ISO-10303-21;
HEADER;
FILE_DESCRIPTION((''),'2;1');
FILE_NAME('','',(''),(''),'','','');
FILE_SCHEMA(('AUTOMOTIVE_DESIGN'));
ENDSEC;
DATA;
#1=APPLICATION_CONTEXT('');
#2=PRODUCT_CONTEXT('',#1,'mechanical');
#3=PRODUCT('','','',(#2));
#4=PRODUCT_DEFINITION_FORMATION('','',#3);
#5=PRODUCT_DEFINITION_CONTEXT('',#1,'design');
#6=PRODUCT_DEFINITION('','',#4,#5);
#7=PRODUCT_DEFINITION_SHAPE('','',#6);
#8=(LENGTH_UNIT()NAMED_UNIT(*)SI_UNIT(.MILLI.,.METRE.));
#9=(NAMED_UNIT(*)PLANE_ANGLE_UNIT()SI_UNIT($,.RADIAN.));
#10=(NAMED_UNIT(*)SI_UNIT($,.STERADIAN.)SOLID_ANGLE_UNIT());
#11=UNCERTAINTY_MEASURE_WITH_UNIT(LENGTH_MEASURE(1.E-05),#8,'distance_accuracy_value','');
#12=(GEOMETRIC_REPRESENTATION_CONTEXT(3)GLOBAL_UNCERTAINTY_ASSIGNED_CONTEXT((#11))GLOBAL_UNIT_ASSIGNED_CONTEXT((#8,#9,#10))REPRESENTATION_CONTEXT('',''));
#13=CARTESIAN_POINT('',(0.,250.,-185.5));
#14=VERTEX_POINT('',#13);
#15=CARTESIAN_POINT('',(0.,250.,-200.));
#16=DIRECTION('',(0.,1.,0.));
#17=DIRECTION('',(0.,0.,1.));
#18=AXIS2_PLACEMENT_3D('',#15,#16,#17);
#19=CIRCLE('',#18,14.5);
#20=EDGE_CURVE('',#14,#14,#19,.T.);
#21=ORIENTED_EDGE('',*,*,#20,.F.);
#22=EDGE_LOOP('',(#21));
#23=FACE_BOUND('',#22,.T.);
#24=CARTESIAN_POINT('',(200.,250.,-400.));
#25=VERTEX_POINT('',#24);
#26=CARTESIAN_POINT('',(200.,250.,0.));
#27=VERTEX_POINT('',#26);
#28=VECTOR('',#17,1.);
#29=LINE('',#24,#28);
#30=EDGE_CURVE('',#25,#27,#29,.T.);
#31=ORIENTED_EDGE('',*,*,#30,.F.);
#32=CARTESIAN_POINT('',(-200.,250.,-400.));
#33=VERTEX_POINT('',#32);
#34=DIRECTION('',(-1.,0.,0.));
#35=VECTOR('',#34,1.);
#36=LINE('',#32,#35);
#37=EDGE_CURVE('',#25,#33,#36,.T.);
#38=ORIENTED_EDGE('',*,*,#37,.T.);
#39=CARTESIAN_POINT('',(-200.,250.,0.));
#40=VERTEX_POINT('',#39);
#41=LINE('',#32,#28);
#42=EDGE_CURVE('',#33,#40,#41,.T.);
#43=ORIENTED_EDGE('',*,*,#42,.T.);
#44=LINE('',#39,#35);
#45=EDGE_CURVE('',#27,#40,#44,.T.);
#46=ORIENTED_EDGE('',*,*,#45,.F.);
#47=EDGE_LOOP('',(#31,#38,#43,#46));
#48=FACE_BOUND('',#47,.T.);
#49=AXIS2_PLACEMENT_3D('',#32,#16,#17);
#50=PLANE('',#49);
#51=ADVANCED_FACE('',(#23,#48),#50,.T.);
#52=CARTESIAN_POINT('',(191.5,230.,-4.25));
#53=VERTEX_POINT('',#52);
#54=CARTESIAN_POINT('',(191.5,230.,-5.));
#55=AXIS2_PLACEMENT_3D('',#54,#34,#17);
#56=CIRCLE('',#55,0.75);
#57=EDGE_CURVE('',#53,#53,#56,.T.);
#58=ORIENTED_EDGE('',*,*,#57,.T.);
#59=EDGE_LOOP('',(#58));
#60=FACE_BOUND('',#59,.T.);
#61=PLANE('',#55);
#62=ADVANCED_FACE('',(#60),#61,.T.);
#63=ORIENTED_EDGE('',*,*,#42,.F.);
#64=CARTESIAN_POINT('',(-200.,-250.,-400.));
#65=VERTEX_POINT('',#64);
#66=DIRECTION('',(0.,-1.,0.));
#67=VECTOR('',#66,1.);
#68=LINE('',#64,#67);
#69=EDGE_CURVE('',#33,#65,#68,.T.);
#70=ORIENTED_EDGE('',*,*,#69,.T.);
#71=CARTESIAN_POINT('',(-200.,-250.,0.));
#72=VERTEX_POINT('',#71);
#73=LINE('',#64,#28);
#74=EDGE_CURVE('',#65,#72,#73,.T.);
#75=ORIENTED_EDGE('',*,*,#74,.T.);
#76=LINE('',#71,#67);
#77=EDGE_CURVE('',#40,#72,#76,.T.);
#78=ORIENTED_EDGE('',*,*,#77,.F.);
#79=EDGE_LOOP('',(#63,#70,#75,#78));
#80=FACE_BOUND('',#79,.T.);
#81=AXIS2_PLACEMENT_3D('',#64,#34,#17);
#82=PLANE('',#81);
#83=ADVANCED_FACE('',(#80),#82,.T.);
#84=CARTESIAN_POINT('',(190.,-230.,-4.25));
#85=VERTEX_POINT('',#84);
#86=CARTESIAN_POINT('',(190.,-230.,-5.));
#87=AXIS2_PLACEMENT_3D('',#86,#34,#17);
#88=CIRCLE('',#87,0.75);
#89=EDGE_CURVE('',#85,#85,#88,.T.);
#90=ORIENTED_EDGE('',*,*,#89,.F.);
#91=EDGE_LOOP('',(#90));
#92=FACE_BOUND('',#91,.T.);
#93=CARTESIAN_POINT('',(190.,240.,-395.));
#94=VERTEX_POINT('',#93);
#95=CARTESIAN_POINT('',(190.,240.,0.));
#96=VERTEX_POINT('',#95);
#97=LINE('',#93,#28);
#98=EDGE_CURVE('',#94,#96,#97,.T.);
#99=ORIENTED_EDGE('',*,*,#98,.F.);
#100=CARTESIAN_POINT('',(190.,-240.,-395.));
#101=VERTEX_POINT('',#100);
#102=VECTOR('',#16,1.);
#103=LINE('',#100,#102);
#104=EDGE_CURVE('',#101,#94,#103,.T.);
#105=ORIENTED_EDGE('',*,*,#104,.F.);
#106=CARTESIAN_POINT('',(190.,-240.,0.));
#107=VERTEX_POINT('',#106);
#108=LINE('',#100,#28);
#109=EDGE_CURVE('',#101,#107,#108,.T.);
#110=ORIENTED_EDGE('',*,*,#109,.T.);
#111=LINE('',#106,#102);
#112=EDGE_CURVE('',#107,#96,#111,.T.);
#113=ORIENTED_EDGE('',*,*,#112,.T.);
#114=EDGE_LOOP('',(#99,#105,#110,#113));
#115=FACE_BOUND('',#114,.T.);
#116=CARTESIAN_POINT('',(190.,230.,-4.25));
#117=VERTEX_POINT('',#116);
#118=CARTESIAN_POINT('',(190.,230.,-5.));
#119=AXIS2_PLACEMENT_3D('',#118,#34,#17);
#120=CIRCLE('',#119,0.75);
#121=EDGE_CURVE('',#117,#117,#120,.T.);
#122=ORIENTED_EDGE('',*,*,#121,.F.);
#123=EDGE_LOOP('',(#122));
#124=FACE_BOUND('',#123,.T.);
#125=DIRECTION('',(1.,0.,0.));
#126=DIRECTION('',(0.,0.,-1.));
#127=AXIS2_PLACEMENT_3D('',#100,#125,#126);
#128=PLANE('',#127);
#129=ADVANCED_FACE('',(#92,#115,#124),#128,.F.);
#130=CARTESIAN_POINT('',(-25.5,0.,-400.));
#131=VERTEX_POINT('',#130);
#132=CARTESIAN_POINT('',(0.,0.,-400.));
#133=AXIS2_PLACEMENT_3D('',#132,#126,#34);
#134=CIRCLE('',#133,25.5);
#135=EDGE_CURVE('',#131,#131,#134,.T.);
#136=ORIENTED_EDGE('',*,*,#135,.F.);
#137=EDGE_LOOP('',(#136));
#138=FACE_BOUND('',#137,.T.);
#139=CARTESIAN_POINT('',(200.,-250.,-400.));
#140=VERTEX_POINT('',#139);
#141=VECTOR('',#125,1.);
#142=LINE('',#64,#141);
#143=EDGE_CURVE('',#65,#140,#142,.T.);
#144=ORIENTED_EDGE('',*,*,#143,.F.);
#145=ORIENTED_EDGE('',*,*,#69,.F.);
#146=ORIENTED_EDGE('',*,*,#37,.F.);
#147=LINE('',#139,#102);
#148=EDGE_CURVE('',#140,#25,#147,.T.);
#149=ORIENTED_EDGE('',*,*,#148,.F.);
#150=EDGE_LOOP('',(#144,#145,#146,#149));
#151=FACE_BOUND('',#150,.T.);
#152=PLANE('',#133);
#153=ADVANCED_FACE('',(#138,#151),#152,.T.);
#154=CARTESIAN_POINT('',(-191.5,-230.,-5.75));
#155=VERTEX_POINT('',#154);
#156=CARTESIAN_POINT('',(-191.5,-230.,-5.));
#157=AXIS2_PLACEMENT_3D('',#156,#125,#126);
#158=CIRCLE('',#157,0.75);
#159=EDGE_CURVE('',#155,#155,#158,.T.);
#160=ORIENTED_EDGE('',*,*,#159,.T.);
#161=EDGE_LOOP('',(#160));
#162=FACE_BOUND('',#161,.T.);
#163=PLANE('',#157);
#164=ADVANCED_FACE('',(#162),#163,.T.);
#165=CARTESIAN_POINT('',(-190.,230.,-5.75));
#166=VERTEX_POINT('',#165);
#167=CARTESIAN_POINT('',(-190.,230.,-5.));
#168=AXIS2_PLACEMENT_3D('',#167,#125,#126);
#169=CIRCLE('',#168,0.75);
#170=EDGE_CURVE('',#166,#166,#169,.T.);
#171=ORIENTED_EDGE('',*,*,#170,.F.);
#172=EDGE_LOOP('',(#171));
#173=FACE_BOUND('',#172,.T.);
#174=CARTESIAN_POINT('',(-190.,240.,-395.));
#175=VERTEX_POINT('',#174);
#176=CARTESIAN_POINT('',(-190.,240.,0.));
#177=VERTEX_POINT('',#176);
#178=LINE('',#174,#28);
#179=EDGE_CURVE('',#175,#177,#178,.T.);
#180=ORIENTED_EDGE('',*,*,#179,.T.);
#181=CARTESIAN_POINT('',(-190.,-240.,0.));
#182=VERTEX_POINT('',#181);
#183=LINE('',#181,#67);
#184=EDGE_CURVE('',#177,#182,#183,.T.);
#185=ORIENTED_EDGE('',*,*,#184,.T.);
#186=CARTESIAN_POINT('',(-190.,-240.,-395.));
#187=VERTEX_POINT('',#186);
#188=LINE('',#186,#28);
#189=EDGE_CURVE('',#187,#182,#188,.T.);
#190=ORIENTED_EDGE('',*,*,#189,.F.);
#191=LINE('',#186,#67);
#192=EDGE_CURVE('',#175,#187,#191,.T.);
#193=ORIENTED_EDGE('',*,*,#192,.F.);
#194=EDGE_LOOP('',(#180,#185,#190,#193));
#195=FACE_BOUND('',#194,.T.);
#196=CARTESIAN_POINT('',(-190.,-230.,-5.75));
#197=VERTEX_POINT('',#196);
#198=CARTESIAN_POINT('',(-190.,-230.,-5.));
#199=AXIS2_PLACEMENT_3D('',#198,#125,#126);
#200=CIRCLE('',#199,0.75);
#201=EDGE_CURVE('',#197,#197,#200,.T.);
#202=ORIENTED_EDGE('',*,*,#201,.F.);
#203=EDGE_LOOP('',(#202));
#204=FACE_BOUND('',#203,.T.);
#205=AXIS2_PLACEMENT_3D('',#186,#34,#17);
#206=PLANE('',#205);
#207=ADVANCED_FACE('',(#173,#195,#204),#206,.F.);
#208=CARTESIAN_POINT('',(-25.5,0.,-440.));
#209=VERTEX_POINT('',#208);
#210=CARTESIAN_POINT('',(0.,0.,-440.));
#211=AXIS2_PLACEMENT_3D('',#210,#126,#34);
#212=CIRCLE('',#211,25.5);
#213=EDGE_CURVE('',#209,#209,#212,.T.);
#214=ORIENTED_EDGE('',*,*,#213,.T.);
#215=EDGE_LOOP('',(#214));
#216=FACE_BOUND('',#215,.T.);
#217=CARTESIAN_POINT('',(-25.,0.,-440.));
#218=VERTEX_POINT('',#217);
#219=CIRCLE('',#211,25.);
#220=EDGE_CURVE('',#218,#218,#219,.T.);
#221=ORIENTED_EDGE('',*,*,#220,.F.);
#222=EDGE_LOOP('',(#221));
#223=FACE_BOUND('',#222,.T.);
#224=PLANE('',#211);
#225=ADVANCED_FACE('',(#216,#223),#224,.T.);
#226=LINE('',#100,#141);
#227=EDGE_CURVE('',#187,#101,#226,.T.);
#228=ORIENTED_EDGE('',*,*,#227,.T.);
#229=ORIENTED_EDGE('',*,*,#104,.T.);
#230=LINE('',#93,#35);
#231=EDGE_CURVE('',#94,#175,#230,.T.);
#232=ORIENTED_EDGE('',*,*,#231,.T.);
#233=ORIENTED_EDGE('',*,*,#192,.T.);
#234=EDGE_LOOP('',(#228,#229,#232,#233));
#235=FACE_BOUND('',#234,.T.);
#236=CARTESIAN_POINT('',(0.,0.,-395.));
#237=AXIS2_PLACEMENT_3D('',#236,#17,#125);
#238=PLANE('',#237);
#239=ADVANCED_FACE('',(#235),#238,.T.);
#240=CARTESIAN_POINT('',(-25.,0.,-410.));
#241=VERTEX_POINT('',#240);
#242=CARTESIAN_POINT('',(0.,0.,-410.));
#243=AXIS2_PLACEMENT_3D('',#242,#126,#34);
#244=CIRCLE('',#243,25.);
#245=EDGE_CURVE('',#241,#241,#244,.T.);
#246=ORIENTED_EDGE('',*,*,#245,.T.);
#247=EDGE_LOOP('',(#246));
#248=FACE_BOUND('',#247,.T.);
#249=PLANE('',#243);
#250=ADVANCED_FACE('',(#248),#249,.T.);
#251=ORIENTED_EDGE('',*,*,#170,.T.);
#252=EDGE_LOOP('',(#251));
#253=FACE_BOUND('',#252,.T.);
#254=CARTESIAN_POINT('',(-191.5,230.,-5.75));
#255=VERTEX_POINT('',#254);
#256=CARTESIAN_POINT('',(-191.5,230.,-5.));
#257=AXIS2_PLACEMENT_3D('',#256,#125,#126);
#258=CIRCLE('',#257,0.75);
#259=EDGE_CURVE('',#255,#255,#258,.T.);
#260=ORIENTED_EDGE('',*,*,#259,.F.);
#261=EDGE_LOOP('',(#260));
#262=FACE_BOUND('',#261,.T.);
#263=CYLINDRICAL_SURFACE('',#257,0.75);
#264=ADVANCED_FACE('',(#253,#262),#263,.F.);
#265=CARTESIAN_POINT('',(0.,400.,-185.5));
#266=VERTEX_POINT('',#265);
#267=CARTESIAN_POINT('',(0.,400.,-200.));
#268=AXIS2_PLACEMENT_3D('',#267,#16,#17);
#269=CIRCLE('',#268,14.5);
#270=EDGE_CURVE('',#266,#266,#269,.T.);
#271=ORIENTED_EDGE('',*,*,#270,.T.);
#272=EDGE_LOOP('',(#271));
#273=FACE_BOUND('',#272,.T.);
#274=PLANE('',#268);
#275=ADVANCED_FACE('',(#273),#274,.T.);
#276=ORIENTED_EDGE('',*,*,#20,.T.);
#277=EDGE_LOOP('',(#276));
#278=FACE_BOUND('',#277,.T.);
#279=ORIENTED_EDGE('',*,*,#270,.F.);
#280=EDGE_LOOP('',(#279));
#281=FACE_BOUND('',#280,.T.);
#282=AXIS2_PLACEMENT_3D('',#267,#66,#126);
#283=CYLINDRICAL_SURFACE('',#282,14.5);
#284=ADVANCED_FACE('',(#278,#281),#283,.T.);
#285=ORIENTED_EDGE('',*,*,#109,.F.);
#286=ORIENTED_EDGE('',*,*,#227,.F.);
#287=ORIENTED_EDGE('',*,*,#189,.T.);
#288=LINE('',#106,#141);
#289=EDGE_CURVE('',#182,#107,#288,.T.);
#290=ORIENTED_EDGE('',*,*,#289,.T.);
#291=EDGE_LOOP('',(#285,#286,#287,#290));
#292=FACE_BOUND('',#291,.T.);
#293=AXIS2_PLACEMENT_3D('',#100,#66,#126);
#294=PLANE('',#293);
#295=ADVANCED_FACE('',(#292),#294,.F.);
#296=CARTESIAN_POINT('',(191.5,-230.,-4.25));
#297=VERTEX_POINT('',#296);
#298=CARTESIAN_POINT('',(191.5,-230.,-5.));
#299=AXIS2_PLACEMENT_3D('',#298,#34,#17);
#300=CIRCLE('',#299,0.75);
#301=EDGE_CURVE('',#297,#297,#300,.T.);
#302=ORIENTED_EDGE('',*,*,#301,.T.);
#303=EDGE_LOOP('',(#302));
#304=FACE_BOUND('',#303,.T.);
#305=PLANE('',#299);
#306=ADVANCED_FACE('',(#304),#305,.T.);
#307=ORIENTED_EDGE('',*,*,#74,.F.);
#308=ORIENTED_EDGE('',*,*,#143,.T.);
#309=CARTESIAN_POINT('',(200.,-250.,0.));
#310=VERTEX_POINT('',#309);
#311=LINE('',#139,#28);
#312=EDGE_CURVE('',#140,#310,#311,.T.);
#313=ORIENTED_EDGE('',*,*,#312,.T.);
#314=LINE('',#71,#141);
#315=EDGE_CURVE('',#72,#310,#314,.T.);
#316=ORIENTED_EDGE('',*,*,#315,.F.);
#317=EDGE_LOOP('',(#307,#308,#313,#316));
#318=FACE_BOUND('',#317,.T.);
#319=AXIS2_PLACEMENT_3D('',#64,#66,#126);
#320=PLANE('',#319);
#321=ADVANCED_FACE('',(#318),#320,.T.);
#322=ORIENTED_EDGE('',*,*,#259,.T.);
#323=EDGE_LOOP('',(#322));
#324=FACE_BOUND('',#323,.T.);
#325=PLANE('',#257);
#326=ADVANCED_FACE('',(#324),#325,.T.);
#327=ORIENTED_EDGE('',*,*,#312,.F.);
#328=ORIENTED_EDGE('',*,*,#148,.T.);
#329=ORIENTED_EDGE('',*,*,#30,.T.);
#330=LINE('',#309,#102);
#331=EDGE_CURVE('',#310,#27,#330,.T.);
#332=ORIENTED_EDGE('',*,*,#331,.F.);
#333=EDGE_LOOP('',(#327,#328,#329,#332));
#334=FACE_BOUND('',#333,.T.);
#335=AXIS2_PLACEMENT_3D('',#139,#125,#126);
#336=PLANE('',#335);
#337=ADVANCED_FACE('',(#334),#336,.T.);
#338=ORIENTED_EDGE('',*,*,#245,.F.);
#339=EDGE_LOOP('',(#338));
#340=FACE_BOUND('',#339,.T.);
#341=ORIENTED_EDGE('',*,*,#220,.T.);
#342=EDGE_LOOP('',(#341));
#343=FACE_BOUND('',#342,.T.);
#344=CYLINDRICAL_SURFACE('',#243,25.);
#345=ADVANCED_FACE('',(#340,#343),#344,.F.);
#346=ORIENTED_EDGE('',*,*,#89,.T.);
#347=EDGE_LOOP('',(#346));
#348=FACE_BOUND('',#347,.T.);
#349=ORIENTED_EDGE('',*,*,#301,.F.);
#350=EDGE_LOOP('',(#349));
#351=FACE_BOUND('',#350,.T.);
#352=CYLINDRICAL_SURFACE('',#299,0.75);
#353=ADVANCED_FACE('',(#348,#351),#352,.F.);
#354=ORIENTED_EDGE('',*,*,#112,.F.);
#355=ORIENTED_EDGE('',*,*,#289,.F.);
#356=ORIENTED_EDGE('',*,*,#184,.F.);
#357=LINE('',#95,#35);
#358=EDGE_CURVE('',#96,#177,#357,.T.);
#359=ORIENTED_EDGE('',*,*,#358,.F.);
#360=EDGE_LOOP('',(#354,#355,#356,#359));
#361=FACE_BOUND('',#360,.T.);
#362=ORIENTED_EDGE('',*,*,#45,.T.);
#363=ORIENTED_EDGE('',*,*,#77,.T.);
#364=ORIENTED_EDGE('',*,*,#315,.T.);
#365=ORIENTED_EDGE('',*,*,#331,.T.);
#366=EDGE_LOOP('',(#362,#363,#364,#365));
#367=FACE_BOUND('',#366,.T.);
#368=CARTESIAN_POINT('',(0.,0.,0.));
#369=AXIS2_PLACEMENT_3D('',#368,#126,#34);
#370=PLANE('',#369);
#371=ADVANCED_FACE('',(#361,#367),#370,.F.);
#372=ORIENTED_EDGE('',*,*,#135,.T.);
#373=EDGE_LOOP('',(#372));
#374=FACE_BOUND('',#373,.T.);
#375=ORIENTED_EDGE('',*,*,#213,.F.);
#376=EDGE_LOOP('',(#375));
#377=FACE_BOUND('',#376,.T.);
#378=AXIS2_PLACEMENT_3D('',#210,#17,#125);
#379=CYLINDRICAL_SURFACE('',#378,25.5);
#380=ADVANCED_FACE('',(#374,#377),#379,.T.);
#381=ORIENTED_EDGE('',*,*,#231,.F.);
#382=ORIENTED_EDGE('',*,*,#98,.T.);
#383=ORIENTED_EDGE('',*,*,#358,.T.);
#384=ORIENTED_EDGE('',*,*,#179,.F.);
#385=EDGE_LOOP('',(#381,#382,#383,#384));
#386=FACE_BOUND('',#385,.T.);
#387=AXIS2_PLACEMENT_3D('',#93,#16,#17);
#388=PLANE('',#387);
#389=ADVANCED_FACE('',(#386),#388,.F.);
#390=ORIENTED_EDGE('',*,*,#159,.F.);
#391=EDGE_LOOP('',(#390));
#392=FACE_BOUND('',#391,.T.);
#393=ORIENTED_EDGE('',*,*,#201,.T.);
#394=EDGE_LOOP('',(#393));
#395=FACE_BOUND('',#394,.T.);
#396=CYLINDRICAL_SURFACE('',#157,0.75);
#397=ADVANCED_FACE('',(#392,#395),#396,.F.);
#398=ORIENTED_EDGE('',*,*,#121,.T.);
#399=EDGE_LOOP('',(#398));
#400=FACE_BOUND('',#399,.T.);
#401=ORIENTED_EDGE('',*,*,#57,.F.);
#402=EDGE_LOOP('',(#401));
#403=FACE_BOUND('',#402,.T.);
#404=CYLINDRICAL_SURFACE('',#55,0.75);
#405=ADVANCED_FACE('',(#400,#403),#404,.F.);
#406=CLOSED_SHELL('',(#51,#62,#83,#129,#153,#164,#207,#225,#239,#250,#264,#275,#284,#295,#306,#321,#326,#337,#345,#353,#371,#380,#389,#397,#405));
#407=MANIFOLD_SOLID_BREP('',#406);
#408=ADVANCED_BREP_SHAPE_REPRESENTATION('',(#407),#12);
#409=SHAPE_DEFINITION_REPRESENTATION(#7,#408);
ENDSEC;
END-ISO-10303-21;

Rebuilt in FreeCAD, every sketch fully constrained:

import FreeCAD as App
import Part
import Sketcher
from FreeCAD import Vector
Q = App.Units.Quantity


def add_polygon(sketch, points):
    """Adds a closed chain of lines whose ends are joined by coincident constraints."""
    first, n = sketch.GeometryCount, len(points)
    for a, b in zip(points, points[1:] + points[:1]):
        sketch.addGeometry(Part.LineSegment(App.Vector(*a, 0), App.Vector(*b, 0)), False)
    for i in range(n):
        sketch.addConstraint(Sketcher.Constraint("Coincident", first + i, 2, first + (i + 1) % n, 1))

doc = App.newDocument("Part")
body = doc.addObject("PartDesign::Body", "Body")

# Sketch on XY plane
sketch1 = body.newObject("Sketcher::SketchObject", "Sketch")
sketch1.AttachmentSupport = (doc.getObject("XY_Plane"), [""])
sketch1.MapMode = "FlatFace"
add_polygon(sketch1, [(-200, 250), (-200, -250), (200, -250), (200, 250)])  # lines 0-3
sketch1.addConstraint([
    Sketcher.Constraint("Vertical", 0),
    Sketcher.Constraint("Horizontal", 1),
    Sketcher.Constraint("Vertical", 2),
    Sketcher.Constraint("Horizontal", 3),
    Sketcher.Constraint("Symmetric", 0, 2, 2, 2, -1, 1),
    Sketcher.Constraint("DistanceX", 1, 1, 1, 2, Q("400 mm")),
    Sketcher.Constraint("DistanceY", 0, 2, 0, 1, Q("500 mm")),
])
pad1 = body.newObject("PartDesign::Pad", "Pad")
pad1.Profile = sketch1
pad1.Length = 400
pad1.Reversed = True

# Sketch on XY plane
sketch2 = body.newObject("Sketcher::SketchObject", "Sketch001")
sketch2.AttachmentSupport = (doc.getObject("XY_Plane"), [""])
sketch2.MapMode = "FlatFace"
add_polygon(sketch2, [(-190, 240), (-190, -240), (190, -240), (190, 240)])  # lines 0-3
sketch2.addConstraint([
    Sketcher.Constraint("Vertical", 0),
    Sketcher.Constraint("Horizontal", 1),
    Sketcher.Constraint("Vertical", 2),
    Sketcher.Constraint("Horizontal", 3),
    Sketcher.Constraint("Symmetric", 0, 2, 2, 2, -1, 1),
    Sketcher.Constraint("DistanceX", 1, 1, 1, 2, Q("380 mm")),
    Sketcher.Constraint("DistanceY", 0, 2, 0, 1, Q("480 mm")),
])
pocket1 = body.newObject("PartDesign::Pocket", "Pocket")
pocket1.Profile = sketch2
pocket1.Length = 395

# Sketch on XY plane
sketch3 = body.newObject("Sketcher::SketchObject", "Sketch002")
sketch3.AttachmentSupport = (doc.getObject("XY_Plane"), [""])
sketch3.MapMode = "FlatFace"
sketch3.AttachmentOffset = App.Placement(Vector(0, 0, -400), App.Rotation())
sketch3.addGeometry(Part.Circle(Vector(0, 0, 0), Vector(0, 0, 1), 26), False)
sketch3.addConstraint([
    Sketcher.Constraint("Coincident", 0, 3, -1, 1),
    Sketcher.Constraint("Diameter", 0, Q("51 mm")),
])
pad2 = body.newObject("PartDesign::Pad", "Pad001")
pad2.Profile = sketch3
pad2.Length = 40
pad2.Reversed = True

# Sketch on XY plane
sketch4 = body.newObject("Sketcher::SketchObject", "Sketch003")
sketch4.AttachmentSupport = (doc.getObject("XY_Plane"), [""])
sketch4.MapMode = "FlatFace"
sketch4.AttachmentOffset = App.Placement(Vector(0, 0, -440), App.Rotation())
sketch4.addGeometry(Part.Circle(Vector(0, 0, 0), Vector(0, 0, 1), 25), False)
sketch4.addConstraint([
    Sketcher.Constraint("Coincident", 0, 3, -1, 1),
    Sketcher.Constraint("Diameter", 0, Q("50 mm")),
])
pocket2 = body.newObject("PartDesign::Pocket", "Pocket001")
pocket2.Profile = sketch4
pocket2.Length = 30
pocket2.Reversed = True

# Sketch on XZ plane
sketch5 = body.newObject("Sketcher::SketchObject", "Sketch004")
sketch5.AttachmentSupport = (doc.getObject("XZ_Plane"), [""])
sketch5.MapMode = "FlatFace"
sketch5.AttachmentOffset = App.Placement(Vector(0, 0, -250), App.Rotation())
sketch5.addGeometry(Part.Circle(Vector(0, -200, 0), Vector(0, 0, 1), 14), False)
sketch5.addConstraint([
    Sketcher.Constraint("PointOnObject", 0, 3, -2),
    Sketcher.Constraint("Diameter", 0, Q("29 mm")),
    Sketcher.Constraint("DistanceY", 0, 3, -1, 1, Q("200 mm")),
])
pad3 = body.newObject("PartDesign::Pad", "Pad002")
pad3.Profile = sketch5
pad3.Length = 150
pad3.Reversed = True

# Sketch on YZ plane
sketch6 = body.newObject("Sketcher::SketchObject", "Sketch005")
sketch6.AttachmentSupport = (doc.getObject("YZ_Plane"), [""])
sketch6.MapMode = "FlatFace"
sketch6.AttachmentOffset = App.Placement(Vector(0, 0, 190), App.Rotation())
sketch6.addGeometry(Part.Circle(Vector(230, -5, 0), Vector(0, 0, 1), 0.8), False)
sketch6.addConstraint([
    Sketcher.Constraint("Diameter", 0, Q("1.5 mm")),
    Sketcher.Constraint("DistanceX", -1, 1, 0, 3, Q("230 mm")),
    Sketcher.Constraint("DistanceY", 0, 3, -1, 1, Q("5 mm")),
])
pocket3 = body.newObject("PartDesign::Pocket", "Pocket002")
pocket3.Profile = sketch6
pocket3.Length = 1.5
pocket3.Reversed = True

# Sketch on YZ plane
sketch7 = body.newObject("Sketcher::SketchObject", "Sketch006")
sketch7.AttachmentSupport = (doc.getObject("YZ_Plane"), [""])
sketch7.MapMode = "FlatFace"
sketch7.AttachmentOffset = App.Placement(Vector(0, 0, -191.5), App.Rotation())
sketch7.addGeometry(Part.Circle(Vector(230, -5, 0), Vector(0, 0, 1), 0.8), False)
sketch7.addConstraint([
    Sketcher.Constraint("Diameter", 0, Q("1.5 mm")),
    Sketcher.Constraint("DistanceX", -1, 1, 0, 3, Q("230 mm")),
    Sketcher.Constraint("DistanceY", 0, 3, -1, 1, Q("5 mm")),
])
pocket4 = body.newObject("PartDesign::Pocket", "Pocket003")
pocket4.Profile = sketch7
pocket4.Length = 1.5
pocket4.Reversed = True

# Sketch on YZ plane
sketch8 = body.newObject("Sketcher::SketchObject", "Sketch007")
sketch8.AttachmentSupport = (doc.getObject("YZ_Plane"), [""])
sketch8.MapMode = "FlatFace"
sketch8.AttachmentOffset = App.Placement(Vector(0, 0, -190), App.Rotation())
sketch8.addGeometry(Part.Circle(Vector(-230, -5, 0), Vector(0, 0, 1), 0.8), False)
sketch8.addConstraint([
    Sketcher.Constraint("Diameter", 0, Q("1.5 mm")),
    Sketcher.Constraint("DistanceX", 0, 3, -1, 1, Q("230 mm")),
    Sketcher.Constraint("DistanceY", 0, 3, -1, 1, Q("5 mm")),
])
pocket5 = body.newObject("PartDesign::Pocket", "Pocket004")
pocket5.Profile = sketch8
pocket5.Length = 1.5

# Sketch on YZ plane
sketch9 = body.newObject("Sketcher::SketchObject", "Sketch008")
sketch9.AttachmentSupport = (doc.getObject("YZ_Plane"), [""])
sketch9.MapMode = "FlatFace"
sketch9.AttachmentOffset = App.Placement(Vector(0, 0, 191.5), App.Rotation())
sketch9.addGeometry(Part.Circle(Vector(-230, -5, 0), Vector(0, 0, 1), 0.8), False)
sketch9.addConstraint([
    Sketcher.Constraint("Diameter", 0, Q("1.5 mm")),
    Sketcher.Constraint("DistanceX", 0, 3, -1, 1, Q("230 mm")),
    Sketcher.Constraint("DistanceY", 0, 3, -1, 1, Q("5 mm")),
])
pocket6 = body.newObject("PartDesign::Pocket", "Pocket005")
pocket6.Profile = sketch9
pocket6.Length = 1.5

doc.recompute()
